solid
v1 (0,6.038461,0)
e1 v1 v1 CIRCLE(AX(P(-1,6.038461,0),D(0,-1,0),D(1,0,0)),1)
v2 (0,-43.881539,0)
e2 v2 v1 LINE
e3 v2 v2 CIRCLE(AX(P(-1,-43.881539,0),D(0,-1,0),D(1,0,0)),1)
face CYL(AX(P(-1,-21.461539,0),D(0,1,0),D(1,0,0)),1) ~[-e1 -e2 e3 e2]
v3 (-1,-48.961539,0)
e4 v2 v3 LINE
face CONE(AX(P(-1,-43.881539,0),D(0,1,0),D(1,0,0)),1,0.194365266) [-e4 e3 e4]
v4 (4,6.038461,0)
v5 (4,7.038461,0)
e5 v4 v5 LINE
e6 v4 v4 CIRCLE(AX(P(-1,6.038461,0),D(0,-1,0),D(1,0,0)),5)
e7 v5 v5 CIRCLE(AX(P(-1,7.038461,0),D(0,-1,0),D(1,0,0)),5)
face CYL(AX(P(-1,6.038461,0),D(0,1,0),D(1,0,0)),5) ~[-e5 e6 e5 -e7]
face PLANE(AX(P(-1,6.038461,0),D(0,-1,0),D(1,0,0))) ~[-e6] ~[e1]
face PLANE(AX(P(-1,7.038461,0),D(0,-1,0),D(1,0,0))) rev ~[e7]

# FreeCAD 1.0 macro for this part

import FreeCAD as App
import Part
import Sketcher

V = App.Vector
Q = App.Units.Quantity


def edges_at(feature, points):
    """Names of the edges that pass closest to the given points."""
    edges = feature.Shape.Edges
    near = lambda p: min(range(len(edges)), key=lambda i: edges[i].distToShape(Part.Vertex(*p))[0])
    return sorted({f"Edge{near(p) + 1}" for p in points})

doc = App.newDocument("Part")
body = doc.addObject("PartDesign::Body", "Body")

# Sketch on XY plane
sketch1 = body.newObject("Sketcher::SketchObject", "Sketch")
sketch1.AttachmentSupport = (doc.getObject("XY_Plane"), [""])
sketch1.MapMode = "FlatFace"
sketch1.addGeometry(Part.LineSegment(V(-1, -48.961539, 0), V(0, -48.961539, 0)), False)
sketch1.addGeometry(Part.LineSegment(V(0, -48.961539, 0), V(0, 6.038461, 0)), False)
sketch1.addGeometry(Part.LineSegment(V(0, 6.038461, 0), V(4, 6.038461, 0)), False)
sketch1.addGeometry(Part.LineSegment(V(4, 6.038461, 0), V(4, 7.038461, 0)), False)
sketch1.addGeometry(Part.LineSegment(V(4, 7.038461, 0), V(-1, 7.038461, 0)), False)
sketch1.addGeometry(Part.LineSegment(V(-1, 7.038461, 0), V(-1, -48.961539, 0)), False)
sketch1.addGeometry(Part.LineSegment(V(-1, 7.038461, 0), V(-1, -48.961539, 0)), True)  # axis
sketch1.addConstraint(Sketcher.Constraint("Coincident", 0, 2, 1, 1))
sketch1.addConstraint(Sketcher.Constraint("Coincident", 1, 2, 2, 1))
sketch1.addConstraint(Sketcher.Constraint("Coincident", 2, 2, 3, 1))
sketch1.addConstraint(Sketcher.Constraint("Coincident", 3, 2, 4, 1))
sketch1.addConstraint(Sketcher.Constraint("Coincident", 4, 2, 5, 1))
sketch1.addConstraint(Sketcher.Constraint("Coincident", 5, 2, 0, 1))
sketch1.addConstraint(Sketcher.Constraint("Horizontal", 0))
sketch1.addConstraint(Sketcher.Constraint("Vertical", 1))
sketch1.addConstraint(Sketcher.Constraint("Horizontal", 2))
sketch1.addConstraint(Sketcher.Constraint("Vertical", 3))
sketch1.addConstraint(Sketcher.Constraint("Horizontal", 4))
sketch1.addConstraint(Sketcher.Constraint("Vertical", 5))
sketch1.addConstraint(Sketcher.Constraint("Vertical", 6))
sketch1.addConstraint(Sketcher.Constraint("Coincident", 6, 1, 4, 2))
sketch1.addConstraint(Sketcher.Constraint("PointOnObject", 0, 2, -2))
sketch1.addConstraint(Sketcher.Constraint("Horizontal", 0, 2, 6, 2))
sketch1.addConstraint(Sketcher.Constraint("Equal", 0, 3))
sketch1.addConstraint(Sketcher.Constraint("DistanceX", 0, 1, 0, 2, Q("1 mm")))
sketch1.addConstraint(Sketcher.Constraint("DistanceX", 2, 1, 2, 2, Q("4 mm")))
sketch1.addConstraint(Sketcher.Constraint("DistanceY", 1, 1, 1, 2, Q("55 mm")))
sketch1.addConstraint(Sketcher.Constraint("DistanceY", 0, 2, -1, 1, Q("48.961539 mm")))
revolution = body.newObject("PartDesign::Revolution", "Revolution")
revolution.Profile = sketch1
revolution.ReferenceAxis = (sketch1, ["Axis0"])
revolution.Angle = 360
doc.recompute()

chamfer = body.newObject("PartDesign::Chamfer", "Chamfer")
chamfer.Base = (revolution, edges_at(revolution, [(-2, -48.962, 0)]))
chamfer.ChamferType = "Two distances"
chamfer.Size = 5.08
chamfer.Size2 = 1
chamfer.FlipDirection = True

doc.recompute()
